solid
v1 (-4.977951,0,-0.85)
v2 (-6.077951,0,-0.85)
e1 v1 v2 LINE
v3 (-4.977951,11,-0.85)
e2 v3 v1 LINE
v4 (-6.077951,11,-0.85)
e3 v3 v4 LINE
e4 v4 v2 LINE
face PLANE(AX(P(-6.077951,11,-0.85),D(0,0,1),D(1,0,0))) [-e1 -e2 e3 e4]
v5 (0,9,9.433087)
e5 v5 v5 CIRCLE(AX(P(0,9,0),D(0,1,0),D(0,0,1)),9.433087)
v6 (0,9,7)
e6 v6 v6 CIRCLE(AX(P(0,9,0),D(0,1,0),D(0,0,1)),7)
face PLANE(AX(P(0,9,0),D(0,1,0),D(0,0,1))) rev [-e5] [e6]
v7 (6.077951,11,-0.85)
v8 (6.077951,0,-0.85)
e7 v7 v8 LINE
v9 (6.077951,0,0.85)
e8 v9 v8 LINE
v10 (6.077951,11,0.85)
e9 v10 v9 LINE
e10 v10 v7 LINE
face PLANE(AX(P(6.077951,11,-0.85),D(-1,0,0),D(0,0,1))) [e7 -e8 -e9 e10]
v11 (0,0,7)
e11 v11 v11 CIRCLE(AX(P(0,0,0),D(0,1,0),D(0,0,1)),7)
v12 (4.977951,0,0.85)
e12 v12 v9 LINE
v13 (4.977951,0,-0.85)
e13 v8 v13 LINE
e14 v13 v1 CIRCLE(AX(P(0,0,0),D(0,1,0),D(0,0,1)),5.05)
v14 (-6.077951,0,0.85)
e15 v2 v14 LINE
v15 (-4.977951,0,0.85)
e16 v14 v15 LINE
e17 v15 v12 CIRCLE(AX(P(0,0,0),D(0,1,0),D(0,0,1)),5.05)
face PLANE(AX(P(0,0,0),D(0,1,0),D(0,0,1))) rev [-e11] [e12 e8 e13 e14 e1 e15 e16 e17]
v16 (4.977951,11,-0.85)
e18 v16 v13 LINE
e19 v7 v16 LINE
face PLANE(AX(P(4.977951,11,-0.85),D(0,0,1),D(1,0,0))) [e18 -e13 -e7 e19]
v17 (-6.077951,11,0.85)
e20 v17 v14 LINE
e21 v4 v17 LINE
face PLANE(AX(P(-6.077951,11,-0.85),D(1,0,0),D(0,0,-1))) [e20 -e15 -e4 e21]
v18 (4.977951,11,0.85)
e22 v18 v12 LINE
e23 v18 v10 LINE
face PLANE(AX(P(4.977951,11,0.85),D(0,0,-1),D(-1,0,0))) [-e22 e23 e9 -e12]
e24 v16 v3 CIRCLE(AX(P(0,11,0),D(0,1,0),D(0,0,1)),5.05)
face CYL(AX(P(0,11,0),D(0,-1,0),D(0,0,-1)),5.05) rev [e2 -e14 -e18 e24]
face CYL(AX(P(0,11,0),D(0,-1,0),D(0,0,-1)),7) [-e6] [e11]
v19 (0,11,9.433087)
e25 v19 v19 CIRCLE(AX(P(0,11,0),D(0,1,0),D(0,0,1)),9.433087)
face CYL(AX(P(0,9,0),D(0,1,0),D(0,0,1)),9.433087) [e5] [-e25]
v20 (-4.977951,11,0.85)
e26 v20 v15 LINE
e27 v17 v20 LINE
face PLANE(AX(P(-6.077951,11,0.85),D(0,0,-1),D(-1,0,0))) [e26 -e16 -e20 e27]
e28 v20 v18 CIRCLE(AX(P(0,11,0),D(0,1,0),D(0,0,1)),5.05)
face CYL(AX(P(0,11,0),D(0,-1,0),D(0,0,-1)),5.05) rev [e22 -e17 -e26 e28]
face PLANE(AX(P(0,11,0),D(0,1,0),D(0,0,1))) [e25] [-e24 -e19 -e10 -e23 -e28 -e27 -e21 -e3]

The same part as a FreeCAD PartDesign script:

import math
import FreeCAD as App
import Part
import Sketcher

V = App.Vector
Q = App.Units.Quantity

doc = App.newDocument("Part")
body = doc.addObject("PartDesign::Body", "Body")

# Sketch on XZ plane
sketch1 = doc.addObject("Sketcher::SketchObject", "Sketch")
body.addObject(sketch1)
sketch1.AttachmentSupport = (doc.XZ_Plane, [""])
sketch1.MapMode = "FlatFace"
sketch1.addGeometry([
    Part.Circle(V(0, 0, 0), V(0, 0, 1), 7),  # 0
    Part.LineSegment(V(-6.1, 0.8, 0), V(-6.1, -0.8, 0)),  # 1
    Part.LineSegment(V(-6.1, -0.8, 0), V(-5, -0.8, 0)),  # 2
    Part.ArcOfCircle(Part.Circle(V(0, 0, 0), V(0, 0, 1), 5), math.radians(-170), math.radians(-10)),  # 3
    Part.LineSegment(V(5, -0.8, 0), V(6.1, -0.8, 0)),  # 4
    Part.LineSegment(V(6.1, -0.8, 0), V(6.1, 0.8, 0)),  # 5
    Part.LineSegment(V(6.1, 0.8, 0), V(5, 0.8, 0)),  # 6
    Part.ArcOfCircle(Part.Circle(V(0, 0, 0), V(0, 0, 1), 5), math.radians(10), math.radians(170)),  # 7
    Part.LineSegment(V(-5, 0.8, 0), V(-6.1, 0.8, 0)),  # 8
], False)
sketch1.addConstraint([
    Sketcher.Constraint("Coincident", 1, 2, 2, 1),
    Sketcher.Constraint("Coincident", 2, 2, 3, 1),
    Sketcher.Constraint("Coincident", 3, 2, 4, 1),
    Sketcher.Constraint("Coincident", 4, 2, 5, 1),
    Sketcher.Constraint("Coincident", 5, 2, 6, 1),
    Sketcher.Constraint("Coincident", 6, 2, 7, 1),
    Sketcher.Constraint("Coincident", 7, 2, 8, 1),
    Sketcher.Constraint("Coincident", 8, 2, 1, 1),
    Sketcher.Constraint("Vertical", 1),
    Sketcher.Constraint("Horizontal", 2),
    Sketcher.Constraint("Horizontal", 4),
    Sketcher.Constraint("Vertical", 5),
    Sketcher.Constraint("Horizontal", 6),
    Sketcher.Constraint("Horizontal", 8),
    Sketcher.Constraint("Coincident", 0, 3, -1, 1),
    Sketcher.Constraint("Coincident", 3, 3, -1, 1),
    Sketcher.Constraint("Coincident", 7, 3, -1, 1),
    Sketcher.Constraint("Equal", 3, 7),
    Sketcher.Constraint("Symmetric", 1, 2, 5, 2, -1, 1),
    Sketcher.Constraint("Horizontal", 2, 2, 3, 2),
    Sketcher.Constraint("Horizontal", 6, 2, 7, 2),
    Sketcher.Constraint("Diameter", 0, Q("14 mm")),
    Sketcher.Constraint("Radius", 3, Q("5.05 mm")),
    Sketcher.Constraint("DistanceX", 2, 1, 2, 2, Q("1.1 mm")),
    Sketcher.Constraint("DistanceY", 1, 2, 1, 1, Q("1.7 mm")),
])
pad1 = doc.addObject("PartDesign::Pad", "Pad")
body.addObject(pad1)
pad1.Profile = sketch1
pad1.Length = 11
pad1.Reversed = True

# Sketch on XZ plane
sketch2 = doc.addObject("Sketcher::SketchObject", "Sketch001")
body.addObject(sketch2)
sketch2.AttachmentSupport = (doc.XZ_Plane, [""])
sketch2.MapMode = "FlatFace"
sketch2.AttachmentOffset = App.Placement(V(0, 0, -11), App.Rotation())
sketch2.addGeometry([
    Part.Circle(V(0, 0, 0), V(0, 0, 1), 9),
    Part.Circle(V(0, 0, 0), V(0, 0, 1), 7),
], False)
sketch2.addConstraint([
    Sketcher.Constraint("Coincident", 0, 3, -1, 1),
    Sketcher.Constraint("Coincident", 1, 3, -1, 1),
    Sketcher.Constraint("Diameter", 1, Q("14 mm")),
    Sketcher.Constraint("Diameter", 0, Q("18.866175 mm")),
])
pad2 = doc.addObject("PartDesign::Pad", "Pad001")
body.addObject(pad2)
pad2.Profile = sketch2
pad2.Length = 2

doc.recompute()
